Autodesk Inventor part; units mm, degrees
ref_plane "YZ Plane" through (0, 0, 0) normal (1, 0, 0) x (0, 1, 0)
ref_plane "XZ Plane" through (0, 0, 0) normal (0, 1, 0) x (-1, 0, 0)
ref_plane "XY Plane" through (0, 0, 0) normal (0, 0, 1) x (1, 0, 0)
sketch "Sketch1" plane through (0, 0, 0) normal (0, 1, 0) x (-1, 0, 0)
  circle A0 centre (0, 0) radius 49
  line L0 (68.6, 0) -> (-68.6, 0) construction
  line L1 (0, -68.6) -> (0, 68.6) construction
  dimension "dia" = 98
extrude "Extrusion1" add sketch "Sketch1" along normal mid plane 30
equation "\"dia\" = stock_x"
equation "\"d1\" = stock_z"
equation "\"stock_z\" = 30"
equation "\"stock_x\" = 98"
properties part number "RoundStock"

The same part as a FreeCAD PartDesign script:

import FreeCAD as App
import Part
import Sketcher

V = App.Vector

doc = App.newDocument("Part")
params = doc.addObject("Spreadsheet::Sheet", "Params")
for row, (alias, value) in enumerate([
    ("sketch1_diameter", "98 mm"),
    ("pad1_length", "30 mm"),
], start=1):
    params.set(f"A{row}", alias)
    params.set(f"B{row}", "=" + value)
    params.setAlias(f"B{row}", alias)

body = doc.addObject("PartDesign::Body", "Body")

# Sketch on XZ plane
sketch1 = body.newObject("Sketcher::SketchObject", "Sketch")
sketch1.AttachmentSupport = (doc.getObject("XZ_Plane"), [""])
sketch1.MapMode = "FlatFace"
sketch1.addGeometry(Part.Circle(V(0, 0, 0), V(0, 0, 1), 49), False)
sketch1.addConstraint(Sketcher.Constraint("Coincident", 0, 3, -1, 1))
sketch1.addConstraint(Sketcher.Constraint("Diameter", 0, 98.0))
sketch1.setExpression("Constraints[1]", "Params.sketch1_diameter")
pad1 = body.newObject("PartDesign::Pad", "Pad")
pad1.Profile = sketch1
pad1.setExpression("Length", "Params.pad1_length")
pad1.Midplane = True

doc.recompute()
